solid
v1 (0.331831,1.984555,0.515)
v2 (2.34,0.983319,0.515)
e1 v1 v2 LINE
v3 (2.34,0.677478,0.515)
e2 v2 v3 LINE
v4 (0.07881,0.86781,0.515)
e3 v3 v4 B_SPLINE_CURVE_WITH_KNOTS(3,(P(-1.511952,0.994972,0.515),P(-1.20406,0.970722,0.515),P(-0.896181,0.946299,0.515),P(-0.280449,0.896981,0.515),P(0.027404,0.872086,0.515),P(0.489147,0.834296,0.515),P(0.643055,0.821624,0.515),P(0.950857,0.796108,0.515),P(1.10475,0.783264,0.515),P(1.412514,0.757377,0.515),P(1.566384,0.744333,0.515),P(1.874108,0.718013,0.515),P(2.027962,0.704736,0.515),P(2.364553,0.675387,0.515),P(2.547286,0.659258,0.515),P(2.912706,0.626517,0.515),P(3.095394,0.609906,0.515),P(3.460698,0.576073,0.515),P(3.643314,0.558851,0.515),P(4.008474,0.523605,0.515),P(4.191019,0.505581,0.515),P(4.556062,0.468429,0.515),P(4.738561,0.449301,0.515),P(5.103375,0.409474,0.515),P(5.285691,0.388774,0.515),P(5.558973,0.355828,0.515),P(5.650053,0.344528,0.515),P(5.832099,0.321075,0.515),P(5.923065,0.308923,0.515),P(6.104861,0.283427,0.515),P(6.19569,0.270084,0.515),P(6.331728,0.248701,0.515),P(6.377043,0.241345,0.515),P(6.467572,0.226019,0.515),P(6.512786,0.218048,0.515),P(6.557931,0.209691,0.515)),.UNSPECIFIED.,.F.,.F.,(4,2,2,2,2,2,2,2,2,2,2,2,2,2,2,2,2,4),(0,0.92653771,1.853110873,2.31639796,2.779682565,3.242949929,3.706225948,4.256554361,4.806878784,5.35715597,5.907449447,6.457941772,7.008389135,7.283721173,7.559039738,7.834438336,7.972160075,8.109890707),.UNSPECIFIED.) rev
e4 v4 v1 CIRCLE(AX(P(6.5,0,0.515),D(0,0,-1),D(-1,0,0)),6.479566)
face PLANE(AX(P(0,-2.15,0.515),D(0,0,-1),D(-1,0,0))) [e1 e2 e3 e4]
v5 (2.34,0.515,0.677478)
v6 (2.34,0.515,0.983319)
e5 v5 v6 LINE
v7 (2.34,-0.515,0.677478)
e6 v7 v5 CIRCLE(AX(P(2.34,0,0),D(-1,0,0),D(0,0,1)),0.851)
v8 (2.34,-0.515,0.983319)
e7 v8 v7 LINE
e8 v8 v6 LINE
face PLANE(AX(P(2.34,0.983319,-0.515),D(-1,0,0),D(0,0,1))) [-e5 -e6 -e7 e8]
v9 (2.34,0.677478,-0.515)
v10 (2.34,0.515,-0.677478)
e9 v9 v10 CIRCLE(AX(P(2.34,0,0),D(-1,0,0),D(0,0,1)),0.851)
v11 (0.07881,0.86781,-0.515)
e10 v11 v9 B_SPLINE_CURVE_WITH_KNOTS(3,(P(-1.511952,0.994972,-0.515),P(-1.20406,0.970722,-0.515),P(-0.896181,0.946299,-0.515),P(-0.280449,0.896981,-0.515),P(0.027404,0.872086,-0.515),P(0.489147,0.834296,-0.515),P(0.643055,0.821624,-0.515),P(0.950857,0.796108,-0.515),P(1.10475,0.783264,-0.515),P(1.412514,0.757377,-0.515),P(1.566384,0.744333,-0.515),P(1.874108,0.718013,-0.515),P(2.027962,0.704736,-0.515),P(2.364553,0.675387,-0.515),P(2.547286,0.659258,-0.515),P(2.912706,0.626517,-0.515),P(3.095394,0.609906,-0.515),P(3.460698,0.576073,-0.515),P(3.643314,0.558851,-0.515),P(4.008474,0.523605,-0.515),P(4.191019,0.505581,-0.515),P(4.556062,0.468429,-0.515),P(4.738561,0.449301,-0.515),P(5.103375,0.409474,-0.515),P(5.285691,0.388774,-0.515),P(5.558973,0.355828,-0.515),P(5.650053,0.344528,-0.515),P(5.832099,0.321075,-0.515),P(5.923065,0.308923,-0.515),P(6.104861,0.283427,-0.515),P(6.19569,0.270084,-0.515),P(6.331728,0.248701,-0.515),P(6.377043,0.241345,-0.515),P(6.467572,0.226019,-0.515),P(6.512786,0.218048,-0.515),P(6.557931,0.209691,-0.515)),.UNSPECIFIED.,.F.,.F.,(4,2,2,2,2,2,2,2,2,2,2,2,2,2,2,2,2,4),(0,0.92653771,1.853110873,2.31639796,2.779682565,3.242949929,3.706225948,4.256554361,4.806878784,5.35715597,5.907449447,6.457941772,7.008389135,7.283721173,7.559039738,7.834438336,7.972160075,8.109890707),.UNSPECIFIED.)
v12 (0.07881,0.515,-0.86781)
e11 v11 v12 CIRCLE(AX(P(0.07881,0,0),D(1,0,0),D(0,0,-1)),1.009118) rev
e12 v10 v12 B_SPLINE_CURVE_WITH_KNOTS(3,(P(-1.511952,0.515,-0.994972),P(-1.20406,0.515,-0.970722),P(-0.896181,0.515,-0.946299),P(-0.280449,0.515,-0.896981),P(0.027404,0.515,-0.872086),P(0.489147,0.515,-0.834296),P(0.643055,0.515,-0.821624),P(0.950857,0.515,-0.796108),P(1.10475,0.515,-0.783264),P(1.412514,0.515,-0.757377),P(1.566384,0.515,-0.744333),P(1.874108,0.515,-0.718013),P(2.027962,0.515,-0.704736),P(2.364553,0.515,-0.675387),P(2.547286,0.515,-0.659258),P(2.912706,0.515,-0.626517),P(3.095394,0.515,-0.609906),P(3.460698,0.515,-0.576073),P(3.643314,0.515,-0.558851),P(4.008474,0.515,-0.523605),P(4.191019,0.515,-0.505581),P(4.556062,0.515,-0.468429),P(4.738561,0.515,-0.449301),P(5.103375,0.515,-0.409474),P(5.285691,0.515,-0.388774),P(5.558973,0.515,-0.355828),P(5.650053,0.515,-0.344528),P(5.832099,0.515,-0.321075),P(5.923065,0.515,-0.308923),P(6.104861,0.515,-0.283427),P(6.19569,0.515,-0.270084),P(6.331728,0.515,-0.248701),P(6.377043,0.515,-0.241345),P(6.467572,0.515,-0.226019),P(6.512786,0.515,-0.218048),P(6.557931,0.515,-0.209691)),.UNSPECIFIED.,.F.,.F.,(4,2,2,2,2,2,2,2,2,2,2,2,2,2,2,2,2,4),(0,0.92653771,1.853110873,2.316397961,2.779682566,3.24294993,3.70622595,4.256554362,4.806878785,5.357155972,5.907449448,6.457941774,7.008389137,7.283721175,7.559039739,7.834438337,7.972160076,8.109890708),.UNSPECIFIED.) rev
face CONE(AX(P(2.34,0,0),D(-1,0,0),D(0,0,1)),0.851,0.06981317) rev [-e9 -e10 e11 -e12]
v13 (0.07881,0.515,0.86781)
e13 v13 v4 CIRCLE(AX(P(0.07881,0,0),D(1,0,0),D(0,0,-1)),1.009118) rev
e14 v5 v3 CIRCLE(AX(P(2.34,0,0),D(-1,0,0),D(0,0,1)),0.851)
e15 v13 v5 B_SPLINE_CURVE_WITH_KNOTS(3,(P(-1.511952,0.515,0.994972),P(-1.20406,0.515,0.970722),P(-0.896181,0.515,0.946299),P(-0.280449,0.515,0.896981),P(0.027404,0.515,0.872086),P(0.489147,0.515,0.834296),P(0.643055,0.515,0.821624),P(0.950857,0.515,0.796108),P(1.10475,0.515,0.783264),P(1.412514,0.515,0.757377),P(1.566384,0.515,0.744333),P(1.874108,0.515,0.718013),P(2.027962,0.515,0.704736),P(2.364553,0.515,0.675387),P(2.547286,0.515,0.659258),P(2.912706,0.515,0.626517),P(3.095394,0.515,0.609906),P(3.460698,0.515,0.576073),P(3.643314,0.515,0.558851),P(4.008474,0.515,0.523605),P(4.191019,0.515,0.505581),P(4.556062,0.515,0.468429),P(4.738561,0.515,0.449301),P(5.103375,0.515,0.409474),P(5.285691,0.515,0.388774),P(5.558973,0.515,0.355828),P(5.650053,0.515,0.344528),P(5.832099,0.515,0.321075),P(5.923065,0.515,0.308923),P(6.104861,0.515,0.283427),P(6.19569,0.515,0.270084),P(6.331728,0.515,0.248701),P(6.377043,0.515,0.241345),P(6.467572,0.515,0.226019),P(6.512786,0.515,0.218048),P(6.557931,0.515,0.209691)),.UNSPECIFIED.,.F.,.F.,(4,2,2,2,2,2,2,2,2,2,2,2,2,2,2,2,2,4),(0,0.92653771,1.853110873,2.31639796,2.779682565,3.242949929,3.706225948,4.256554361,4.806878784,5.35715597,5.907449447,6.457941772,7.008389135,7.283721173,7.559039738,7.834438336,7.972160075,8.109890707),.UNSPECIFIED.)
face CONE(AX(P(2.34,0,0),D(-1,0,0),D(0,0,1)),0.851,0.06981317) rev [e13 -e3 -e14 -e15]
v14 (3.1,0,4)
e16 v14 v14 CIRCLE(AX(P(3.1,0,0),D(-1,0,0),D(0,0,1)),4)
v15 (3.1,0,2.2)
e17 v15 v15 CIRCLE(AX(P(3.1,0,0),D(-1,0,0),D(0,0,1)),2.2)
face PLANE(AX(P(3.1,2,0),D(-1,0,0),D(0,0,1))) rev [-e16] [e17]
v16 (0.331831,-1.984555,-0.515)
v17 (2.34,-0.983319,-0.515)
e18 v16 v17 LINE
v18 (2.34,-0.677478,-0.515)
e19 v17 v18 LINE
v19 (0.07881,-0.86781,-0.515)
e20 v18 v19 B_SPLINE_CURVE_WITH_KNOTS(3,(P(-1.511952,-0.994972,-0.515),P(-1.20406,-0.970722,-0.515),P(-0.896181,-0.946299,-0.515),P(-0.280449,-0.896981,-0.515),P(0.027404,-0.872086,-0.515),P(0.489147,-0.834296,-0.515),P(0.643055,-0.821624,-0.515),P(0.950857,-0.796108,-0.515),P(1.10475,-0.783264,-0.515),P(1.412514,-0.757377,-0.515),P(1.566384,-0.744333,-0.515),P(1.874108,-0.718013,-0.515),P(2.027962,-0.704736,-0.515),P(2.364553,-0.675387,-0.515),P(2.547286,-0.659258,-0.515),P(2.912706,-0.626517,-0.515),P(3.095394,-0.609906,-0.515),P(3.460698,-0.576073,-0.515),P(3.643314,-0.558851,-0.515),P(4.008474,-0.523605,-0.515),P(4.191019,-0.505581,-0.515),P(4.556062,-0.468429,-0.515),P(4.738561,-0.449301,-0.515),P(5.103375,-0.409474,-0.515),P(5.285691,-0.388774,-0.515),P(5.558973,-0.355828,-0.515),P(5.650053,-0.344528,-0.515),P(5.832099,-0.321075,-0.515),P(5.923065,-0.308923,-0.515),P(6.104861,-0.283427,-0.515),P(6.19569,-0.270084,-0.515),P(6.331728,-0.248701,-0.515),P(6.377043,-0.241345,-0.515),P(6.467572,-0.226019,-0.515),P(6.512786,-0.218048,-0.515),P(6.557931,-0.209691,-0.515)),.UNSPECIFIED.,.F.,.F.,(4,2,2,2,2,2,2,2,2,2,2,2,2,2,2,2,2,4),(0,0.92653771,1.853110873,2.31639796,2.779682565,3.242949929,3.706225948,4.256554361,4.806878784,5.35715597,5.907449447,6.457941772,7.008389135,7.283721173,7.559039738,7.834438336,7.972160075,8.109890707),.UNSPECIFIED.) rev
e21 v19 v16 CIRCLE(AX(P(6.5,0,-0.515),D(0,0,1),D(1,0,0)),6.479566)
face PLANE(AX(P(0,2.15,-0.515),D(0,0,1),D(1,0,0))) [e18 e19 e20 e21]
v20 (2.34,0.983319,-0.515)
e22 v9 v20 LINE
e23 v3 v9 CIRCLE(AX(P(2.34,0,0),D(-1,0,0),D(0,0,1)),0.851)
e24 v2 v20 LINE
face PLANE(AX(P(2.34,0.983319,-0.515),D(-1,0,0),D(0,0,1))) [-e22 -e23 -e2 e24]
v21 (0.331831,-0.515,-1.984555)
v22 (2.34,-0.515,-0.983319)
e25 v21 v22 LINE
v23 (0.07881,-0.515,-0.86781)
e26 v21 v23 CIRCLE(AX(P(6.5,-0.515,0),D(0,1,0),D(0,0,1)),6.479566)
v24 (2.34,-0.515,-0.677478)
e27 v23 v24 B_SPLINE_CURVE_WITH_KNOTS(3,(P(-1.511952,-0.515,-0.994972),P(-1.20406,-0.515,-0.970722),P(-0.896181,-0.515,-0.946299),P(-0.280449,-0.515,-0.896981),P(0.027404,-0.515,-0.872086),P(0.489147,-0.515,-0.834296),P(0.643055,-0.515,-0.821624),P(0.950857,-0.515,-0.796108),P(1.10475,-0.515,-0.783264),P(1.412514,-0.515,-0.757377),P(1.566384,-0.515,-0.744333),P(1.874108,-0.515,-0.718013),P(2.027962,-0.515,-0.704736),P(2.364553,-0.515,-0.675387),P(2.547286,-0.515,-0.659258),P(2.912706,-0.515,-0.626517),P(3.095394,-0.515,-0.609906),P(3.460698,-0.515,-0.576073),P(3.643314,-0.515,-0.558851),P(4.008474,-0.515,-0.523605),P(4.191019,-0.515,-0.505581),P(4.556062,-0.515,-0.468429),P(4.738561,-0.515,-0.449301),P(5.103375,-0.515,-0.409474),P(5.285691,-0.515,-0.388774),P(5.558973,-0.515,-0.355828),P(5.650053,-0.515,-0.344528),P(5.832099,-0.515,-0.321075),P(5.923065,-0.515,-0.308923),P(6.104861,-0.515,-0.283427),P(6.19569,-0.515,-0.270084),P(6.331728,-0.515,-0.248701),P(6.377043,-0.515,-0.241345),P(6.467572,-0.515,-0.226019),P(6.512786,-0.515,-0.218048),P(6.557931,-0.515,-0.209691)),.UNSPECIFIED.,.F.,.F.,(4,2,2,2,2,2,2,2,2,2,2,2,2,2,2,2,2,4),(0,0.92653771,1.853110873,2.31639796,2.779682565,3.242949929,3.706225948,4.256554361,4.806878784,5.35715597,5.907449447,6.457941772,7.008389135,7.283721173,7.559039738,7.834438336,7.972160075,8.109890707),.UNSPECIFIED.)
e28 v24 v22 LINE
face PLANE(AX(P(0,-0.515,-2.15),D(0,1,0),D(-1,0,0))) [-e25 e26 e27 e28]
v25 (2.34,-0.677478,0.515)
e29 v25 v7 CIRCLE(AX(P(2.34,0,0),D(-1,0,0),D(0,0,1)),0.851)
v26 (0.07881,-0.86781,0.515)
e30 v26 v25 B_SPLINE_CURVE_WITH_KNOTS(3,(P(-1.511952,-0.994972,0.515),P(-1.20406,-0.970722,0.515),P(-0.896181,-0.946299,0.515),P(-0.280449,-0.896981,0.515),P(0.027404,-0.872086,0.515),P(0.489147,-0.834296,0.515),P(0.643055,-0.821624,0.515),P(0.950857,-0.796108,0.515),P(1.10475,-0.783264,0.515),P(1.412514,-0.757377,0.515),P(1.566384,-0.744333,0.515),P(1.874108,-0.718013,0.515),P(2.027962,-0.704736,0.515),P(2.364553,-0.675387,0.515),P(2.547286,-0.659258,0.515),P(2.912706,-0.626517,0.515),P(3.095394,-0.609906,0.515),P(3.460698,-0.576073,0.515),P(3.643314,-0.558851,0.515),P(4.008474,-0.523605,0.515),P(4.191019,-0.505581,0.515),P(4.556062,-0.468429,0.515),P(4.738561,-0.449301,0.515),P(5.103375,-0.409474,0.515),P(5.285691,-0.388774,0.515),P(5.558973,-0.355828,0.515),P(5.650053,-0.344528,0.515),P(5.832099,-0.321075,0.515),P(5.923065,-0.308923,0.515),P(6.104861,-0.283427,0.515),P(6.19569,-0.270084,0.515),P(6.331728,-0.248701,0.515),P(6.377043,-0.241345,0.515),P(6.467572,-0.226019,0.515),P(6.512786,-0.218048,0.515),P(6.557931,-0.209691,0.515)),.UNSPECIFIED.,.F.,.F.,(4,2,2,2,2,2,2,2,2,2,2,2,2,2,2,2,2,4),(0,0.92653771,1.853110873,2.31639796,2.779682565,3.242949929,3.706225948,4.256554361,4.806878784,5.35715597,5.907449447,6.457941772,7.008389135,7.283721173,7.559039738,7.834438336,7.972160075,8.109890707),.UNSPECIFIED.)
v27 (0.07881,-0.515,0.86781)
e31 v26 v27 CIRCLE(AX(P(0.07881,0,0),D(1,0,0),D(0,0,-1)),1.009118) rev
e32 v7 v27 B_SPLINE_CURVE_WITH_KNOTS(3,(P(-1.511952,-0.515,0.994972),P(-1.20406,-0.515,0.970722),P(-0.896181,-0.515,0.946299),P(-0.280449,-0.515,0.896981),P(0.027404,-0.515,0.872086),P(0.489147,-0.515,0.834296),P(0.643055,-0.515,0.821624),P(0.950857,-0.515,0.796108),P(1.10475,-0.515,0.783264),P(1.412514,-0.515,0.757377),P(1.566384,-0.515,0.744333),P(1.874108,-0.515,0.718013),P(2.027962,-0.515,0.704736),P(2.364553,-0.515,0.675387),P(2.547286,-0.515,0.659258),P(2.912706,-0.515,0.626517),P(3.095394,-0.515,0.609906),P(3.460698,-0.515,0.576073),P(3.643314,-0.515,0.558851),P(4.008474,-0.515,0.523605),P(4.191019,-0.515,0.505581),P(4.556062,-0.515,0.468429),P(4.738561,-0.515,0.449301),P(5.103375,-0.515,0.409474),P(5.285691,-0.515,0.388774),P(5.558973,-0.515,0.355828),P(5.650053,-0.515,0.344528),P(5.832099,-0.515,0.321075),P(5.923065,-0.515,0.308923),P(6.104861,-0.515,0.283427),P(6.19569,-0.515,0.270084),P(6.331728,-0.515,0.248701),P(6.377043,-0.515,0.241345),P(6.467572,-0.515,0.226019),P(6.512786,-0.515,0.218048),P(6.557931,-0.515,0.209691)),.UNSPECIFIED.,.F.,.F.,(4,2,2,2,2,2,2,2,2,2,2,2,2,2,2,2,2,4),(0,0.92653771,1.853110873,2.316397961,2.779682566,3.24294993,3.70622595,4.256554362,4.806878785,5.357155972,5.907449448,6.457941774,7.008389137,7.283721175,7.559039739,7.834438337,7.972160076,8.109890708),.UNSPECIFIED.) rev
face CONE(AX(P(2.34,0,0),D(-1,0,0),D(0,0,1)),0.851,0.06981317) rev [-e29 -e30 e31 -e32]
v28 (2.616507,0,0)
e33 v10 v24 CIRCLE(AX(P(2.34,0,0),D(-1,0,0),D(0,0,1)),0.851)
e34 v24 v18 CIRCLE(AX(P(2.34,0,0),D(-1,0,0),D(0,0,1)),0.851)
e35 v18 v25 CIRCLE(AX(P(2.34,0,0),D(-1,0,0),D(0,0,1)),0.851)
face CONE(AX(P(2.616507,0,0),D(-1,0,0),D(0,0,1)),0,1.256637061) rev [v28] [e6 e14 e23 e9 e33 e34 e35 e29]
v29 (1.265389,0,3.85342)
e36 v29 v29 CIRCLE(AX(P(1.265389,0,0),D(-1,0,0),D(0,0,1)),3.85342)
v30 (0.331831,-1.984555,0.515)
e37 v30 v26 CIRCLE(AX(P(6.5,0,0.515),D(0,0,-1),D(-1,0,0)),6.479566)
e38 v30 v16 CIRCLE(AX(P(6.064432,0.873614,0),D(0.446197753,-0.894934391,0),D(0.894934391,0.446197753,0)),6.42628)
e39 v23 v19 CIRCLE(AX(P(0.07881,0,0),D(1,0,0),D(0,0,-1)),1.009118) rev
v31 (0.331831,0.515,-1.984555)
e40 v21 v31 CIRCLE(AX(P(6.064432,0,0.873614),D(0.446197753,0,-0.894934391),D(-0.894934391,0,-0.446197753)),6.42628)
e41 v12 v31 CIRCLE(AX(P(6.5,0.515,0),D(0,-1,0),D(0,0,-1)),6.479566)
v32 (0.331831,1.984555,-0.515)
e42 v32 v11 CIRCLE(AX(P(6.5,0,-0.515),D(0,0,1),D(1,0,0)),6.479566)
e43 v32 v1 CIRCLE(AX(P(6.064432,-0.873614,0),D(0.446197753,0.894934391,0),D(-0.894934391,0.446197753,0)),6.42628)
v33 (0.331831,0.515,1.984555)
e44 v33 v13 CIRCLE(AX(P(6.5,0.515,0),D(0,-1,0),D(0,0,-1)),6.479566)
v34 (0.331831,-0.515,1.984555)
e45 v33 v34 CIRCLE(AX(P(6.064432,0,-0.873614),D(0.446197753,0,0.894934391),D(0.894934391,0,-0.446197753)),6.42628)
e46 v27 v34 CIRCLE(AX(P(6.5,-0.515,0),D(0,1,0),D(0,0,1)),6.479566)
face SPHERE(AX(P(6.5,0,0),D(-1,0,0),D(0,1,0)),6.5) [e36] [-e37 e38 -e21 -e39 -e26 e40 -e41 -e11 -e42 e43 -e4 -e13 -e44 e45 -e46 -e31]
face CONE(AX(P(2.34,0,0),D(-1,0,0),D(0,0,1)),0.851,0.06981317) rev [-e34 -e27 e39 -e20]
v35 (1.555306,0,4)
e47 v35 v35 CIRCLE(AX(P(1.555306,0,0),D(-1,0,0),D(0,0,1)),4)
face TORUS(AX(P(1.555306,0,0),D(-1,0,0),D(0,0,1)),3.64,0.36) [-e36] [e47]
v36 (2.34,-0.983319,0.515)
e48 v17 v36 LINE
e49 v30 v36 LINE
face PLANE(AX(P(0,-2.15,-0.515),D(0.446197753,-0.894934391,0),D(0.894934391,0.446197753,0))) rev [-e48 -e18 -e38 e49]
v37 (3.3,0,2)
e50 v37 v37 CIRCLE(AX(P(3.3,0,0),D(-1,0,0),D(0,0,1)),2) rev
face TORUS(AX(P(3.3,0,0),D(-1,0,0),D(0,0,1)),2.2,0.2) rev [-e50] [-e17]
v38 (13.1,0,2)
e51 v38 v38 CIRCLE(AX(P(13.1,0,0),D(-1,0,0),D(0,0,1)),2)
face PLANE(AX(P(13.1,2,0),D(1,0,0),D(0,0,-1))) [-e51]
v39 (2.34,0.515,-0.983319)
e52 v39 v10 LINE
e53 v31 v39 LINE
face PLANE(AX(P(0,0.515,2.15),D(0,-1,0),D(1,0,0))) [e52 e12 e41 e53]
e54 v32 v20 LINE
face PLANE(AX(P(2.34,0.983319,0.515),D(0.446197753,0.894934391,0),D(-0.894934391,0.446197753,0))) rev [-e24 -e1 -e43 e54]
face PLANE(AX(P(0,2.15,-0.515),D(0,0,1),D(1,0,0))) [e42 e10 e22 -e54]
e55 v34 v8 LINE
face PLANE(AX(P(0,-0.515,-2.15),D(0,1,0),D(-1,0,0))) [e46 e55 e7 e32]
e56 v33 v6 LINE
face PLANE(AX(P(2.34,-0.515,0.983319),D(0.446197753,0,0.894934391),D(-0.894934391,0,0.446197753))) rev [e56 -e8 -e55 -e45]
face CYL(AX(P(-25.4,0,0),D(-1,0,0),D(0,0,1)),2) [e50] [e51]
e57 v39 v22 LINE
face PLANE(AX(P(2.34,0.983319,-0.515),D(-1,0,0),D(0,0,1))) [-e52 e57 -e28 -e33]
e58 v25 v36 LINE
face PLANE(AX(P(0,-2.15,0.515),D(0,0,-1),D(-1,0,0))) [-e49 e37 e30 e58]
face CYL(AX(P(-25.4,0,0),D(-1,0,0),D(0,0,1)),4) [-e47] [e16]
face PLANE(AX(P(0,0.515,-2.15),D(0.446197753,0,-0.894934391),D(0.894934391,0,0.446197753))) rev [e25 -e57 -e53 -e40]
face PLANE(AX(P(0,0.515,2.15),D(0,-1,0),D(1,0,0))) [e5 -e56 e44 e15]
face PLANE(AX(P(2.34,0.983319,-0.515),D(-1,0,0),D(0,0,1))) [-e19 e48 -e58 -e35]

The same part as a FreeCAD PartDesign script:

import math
import FreeCAD as App
import Part
import Sketcher
from FreeCAD import Vector
Q = App.Units.Quantity


def edges_at(feature, points):
    """Names of the edges that pass closest to the given points."""
    edges = feature.Shape.Edges
    near = lambda p: min(range(len(edges)), key=lambda i: edges[i].distToShape(Part.Vertex(*p))[0])
    return sorted({f"Edge{near(p) + 1}" for p in points})

doc = App.newDocument("Part")
body = doc.addObject("PartDesign::Body", "Body")

sketch1 = doc.addObject("Sketcher::SketchObject", "Sketch")
body.addObject(sketch1)
sketch1.AttachmentSupport = (doc.XY_Plane, [""])
sketch1.MapMode = "FlatFace"
sketch1.addGeometry([
    Part.LineSegment(Vector(3.1, 2, 0), Vector(3.1, 4, 0)),
    Part.LineSegment(Vector(3.1, 4, 0), Vector(1.555306, 4, 0)),
    Part.ArcOfCircle(Part.Circle(Vector(1.555306, 3.64, 0), Vector(0, 0, 1), 0.36), math.radians(90), math.radians(143.641633)),
    Part.ArcOfCircle(Part.Circle(Vector(6.5, 0, 0), Vector(0, 0, 1), 6.5), math.radians(143.641632), math.radians(180)),
    Part.LineSegment(Vector(0, 0, 0), Vector(13.1, 0, 0)),
    Part.LineSegment(Vector(13.1, 0, 0), Vector(13.1, 2, 0)),
    Part.LineSegment(Vector(13.1, 2, 0), Vector(3.1, 2, 0)),
], False)
sketch1.addConstraint([
    Sketcher.Constraint("Coincident", 0, 2, 1, 1),
    Sketcher.Constraint("Tangent", 1, 2, 2, 1),
    Sketcher.Constraint("Tangent", 2, 2, 3, 1),
    Sketcher.Constraint("Coincident", 3, 2, 4, 1),
    Sketcher.Constraint("Coincident", 4, 2, 5, 1),
    Sketcher.Constraint("Coincident", 5, 2, 6, 1),
    Sketcher.Constraint("Coincident", 6, 2, 0, 1),
    Sketcher.Constraint("Vertical", 0),
    Sketcher.Constraint("Horizontal", 1),
    Sketcher.Constraint("Horizontal", 4),
    Sketcher.Constraint("Vertical", 5),
    Sketcher.Constraint("Horizontal", 6),
    Sketcher.Constraint("Coincident", 3, 2, -1, 1),
    Sketcher.Constraint("PointOnObject", 3, 3, -1),
    Sketcher.Constraint("Equal", 0, 5),
    Sketcher.Constraint("Radius", 3, 6.5),
    Sketcher.Constraint("DistanceX", 6, 2, 6, 1, 10.0),
    Sketcher.Constraint("DistanceY", 0, 1, 0, 2, 2.0),
    Sketcher.Constraint("Radius", 2, 0.36),
    Sketcher.Constraint("DistanceX", 4, 1, 4, 2, 13.1),
])
revolution = doc.addObject("PartDesign::Revolution", "Revolution")
body.addObject(revolution)
revolution.Profile = sketch1
revolution.ReferenceAxis = (sketch1, ["H_Axis"])
revolution.Angle = 360
doc.recompute()

fillet = doc.addObject("PartDesign::Fillet", "Fillet")
body.addObject(fillet)
fillet.Base = (revolution, edges_at(revolution, [(3.1, -2, 0)]))
fillet.Radius = 0.2

sketch2 = doc.addObject("Sketcher::SketchObject", "Sketch001")
body.addObject(sketch2)
sketch2.AttachmentSupport = (doc.YZ_Plane, [""])
sketch2.MapMode = "FlatFace"
sketch2.addGeometry([
    Part.LineSegment(Vector(2.15, 0.515, 0), Vector(-2.15, 0.515, 0)),
    Part.LineSegment(Vector(-2.15, 0.515, 0), Vector(-2.15, -0.515, 0)),
    Part.LineSegment(Vector(-2.15, -0.515, 0), Vector(2.15, -0.515, 0)),
    Part.LineSegment(Vector(2.15, -0.515, 0), Vector(2.15, 0.515, 0)),
], False)
sketch2.addConstraint([
    Sketcher.Constraint("Coincident", 0, 2, 1, 1),
    Sketcher.Constraint("Coincident", 1, 2, 2, 1),
    Sketcher.Constraint("Coincident", 2, 2, 3, 1),
    Sketcher.Constraint("Coincident", 3, 2, 0, 1),
    Sketcher.Constraint("Horizontal", 0),
    Sketcher.Constraint("Vertical", 1),
    Sketcher.Constraint("Horizontal", 2),
    Sketcher.Constraint("Vertical", 3),
    Sketcher.Constraint("Symmetric", 0, 2, 2, 2, -1, 1),
    Sketcher.Constraint("DistanceX", 0, 2, 0, 1, 4.3),
    Sketcher.Constraint("DistanceY", 1, 2, 1, 1, 1.03),
])

sketch3 = doc.addObject("Sketcher::SketchObject", "Sketch002")
body.addObject(sketch3)
sketch3.AttachmentSupport = (doc.YZ_Plane, [""])
sketch3.MapMode = "FlatFace"
sketch3.AttachmentOffset = App.Placement(Vector(0, 0, 2.34), App.Rotation())
sketch3.addGeometry([
    Part.LineSegment(Vector(0.983319, 0.515, 0), Vector(-0.983319, 0.515, 0)),
    Part.LineSegment(Vector(-0.983319, 0.515, 0), Vector(-0.983319, -0.515, 0)),
    Part.LineSegment(Vector(-0.983319, -0.515, 0), Vector(0.983319, -0.515, 0)),
    Part.LineSegment(Vector(0.983319, -0.515, 0), Vector(0.983319, 0.515, 0)),
], False)
sketch3.addConstraint([
    Sketcher.Constraint("Coincident", 0, 2, 1, 1),
    Sketcher.Constraint("Coincident", 1, 2, 2, 1),
    Sketcher.Constraint("Coincident", 2, 2, 3, 1),
    Sketcher.Constraint("Coincident", 3, 2, 0, 1),
    Sketcher.Constraint("Horizontal", 0),
    Sketcher.Constraint("Vertical", 1),
    Sketcher.Constraint("Horizontal", 2),
    Sketcher.Constraint("Vertical", 3),
    Sketcher.Constraint("Symmetric", 0, 2, 2, 2, -1, 1),
    Sketcher.Constraint("DistanceY", 1, 2, 1, 1, 1.03),
    Sketcher.Constraint("DistanceX", 0, 2, 0, 1, 1.966638),
])

subtractiveloft = doc.addObject("PartDesign::SubtractiveLoft", "SubtractiveLoft")
body.addObject(subtractiveloft)
subtractiveloft.Profile = sketch2
subtractiveloft.Sections = [sketch3]
doc.recompute()

polarpattern = doc.addObject("PartDesign::PolarPattern", "PolarPattern")
body.addObject(polarpattern)
polarpattern.Originals = [subtractiveloft]
polarpattern.Axis = (doc.X_Axis, [""])
polarpattern.Angle = 90
polarpattern.Occurrences = 2
body.Tip = polarpattern

sketch4 = doc.addObject("Sketcher::SketchObject", "Sketch003")
body.addObject(sketch4)
sketch4.AttachmentSupport = (doc.XY_Plane, [""])
sketch4.MapMode = "FlatFace"
sketch4.addGeometry([
    Part.LineSegment(Vector(0, 1.014629, 0), Vector(0, 0, 0)),
    Part.LineSegment(Vector(0, 0, 0), Vector(2.616507, 0, 0)),
    Part.LineSegment(Vector(2.616507, 0, 0), Vector(2.34, 0.851, 0)),
    Part.LineSegment(Vector(2.34, 0.851, 0), Vector(0, 1.014629, 0)),
], False)
sketch4.addConstraint([
    Sketcher.Constraint("Coincident", 0, 2, 1, 1),
    Sketcher.Constraint("Coincident", 1, 2, 2, 1),
    Sketcher.Constraint("Coincident", 2, 2, 3, 1),
    Sketcher.Constraint("Coincident", 3, 2, 0, 1),
    Sketcher.Constraint("Vertical", 0),
    Sketcher.Constraint("Horizontal", 1),
    Sketcher.Constraint("Coincident", 0, 2, -1, 1),
    Sketcher.Constraint("Angle", 2, Q("108 deg")),
    Sketcher.Constraint("Angle", 3, Q("176 deg")),
    Sketcher.Constraint("DistanceX", -1, 1, 2, 2, 2.34),
    Sketcher.Constraint("DistanceY", -1, 1, 2, 2, 0.851),
])
groove = doc.addObject("PartDesign::Groove", "Groove")
body.addObject(groove)
groove.Profile = sketch4
groove.ReferenceAxis = (sketch4, ["H_Axis"])
groove.Angle = 360

doc.recompute()
